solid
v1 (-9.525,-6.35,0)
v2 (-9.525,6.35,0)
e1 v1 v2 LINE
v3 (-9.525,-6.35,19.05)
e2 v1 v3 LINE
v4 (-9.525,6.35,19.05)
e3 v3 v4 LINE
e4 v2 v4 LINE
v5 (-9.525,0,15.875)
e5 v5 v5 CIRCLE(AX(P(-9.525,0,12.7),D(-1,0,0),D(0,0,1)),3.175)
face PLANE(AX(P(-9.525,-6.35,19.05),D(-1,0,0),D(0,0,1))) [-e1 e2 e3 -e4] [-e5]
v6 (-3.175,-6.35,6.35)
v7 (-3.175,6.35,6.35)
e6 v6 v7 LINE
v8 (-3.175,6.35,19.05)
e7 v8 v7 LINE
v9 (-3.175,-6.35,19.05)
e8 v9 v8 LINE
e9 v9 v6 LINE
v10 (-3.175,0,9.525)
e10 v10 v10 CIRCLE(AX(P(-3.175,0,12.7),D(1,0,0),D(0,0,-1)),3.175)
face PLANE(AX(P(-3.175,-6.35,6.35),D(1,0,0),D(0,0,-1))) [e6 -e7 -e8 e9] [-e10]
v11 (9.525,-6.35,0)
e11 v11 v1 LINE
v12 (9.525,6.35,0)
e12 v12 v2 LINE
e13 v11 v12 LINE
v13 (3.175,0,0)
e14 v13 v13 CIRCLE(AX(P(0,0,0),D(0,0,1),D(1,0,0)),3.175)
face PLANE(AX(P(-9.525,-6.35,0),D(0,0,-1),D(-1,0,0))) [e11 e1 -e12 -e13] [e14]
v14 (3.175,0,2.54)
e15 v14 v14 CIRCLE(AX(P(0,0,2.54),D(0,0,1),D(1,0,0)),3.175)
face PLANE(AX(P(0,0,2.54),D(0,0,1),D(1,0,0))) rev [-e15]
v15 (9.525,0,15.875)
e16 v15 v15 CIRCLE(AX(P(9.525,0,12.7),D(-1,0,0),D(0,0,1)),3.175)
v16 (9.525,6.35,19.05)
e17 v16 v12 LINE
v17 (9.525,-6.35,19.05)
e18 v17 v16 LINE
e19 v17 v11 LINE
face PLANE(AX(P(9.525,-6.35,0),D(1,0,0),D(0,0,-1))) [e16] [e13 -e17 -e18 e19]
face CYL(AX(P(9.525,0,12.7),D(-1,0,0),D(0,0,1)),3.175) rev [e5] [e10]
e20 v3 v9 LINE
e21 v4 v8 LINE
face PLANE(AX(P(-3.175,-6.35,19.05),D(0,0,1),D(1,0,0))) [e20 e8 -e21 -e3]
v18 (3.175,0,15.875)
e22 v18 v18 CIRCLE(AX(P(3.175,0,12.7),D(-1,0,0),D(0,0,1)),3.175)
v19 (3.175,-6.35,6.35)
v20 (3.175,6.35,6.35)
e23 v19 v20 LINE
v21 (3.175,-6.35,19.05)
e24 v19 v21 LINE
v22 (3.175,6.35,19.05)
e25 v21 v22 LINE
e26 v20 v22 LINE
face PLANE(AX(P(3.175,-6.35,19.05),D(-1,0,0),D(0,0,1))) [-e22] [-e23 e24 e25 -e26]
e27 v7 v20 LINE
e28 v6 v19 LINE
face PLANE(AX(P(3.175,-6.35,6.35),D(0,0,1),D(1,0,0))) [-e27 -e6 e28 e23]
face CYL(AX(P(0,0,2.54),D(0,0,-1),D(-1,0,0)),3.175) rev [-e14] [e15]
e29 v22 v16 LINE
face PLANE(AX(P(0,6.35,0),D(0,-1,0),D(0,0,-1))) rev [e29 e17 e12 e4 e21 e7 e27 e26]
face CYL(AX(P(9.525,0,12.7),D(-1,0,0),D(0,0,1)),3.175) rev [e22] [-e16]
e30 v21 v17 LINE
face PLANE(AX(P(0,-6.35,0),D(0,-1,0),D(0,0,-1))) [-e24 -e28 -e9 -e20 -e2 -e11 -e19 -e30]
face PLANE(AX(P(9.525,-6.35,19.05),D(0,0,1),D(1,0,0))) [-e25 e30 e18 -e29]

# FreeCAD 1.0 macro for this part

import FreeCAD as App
import Part
import Sketcher
Q = App.Units.Quantity


def add_polygon(sketch, points):
    """Adds a closed chain of lines whose ends are joined by coincident constraints."""
    first, n = sketch.GeometryCount, len(points)
    for a, b in zip(points, points[1:] + points[:1]):
        sketch.addGeometry(Part.LineSegment(App.Vector(*a, 0), App.Vector(*b, 0)), False)
    for i in range(n):
        sketch.addConstraint(Sketcher.Constraint("Coincident", first + i, 2, first + (i + 1) % n, 1))

doc = App.newDocument("Part")
params = doc.addObject("Spreadsheet::Sheet", "Params")
for row, (alias, value) in enumerate([
    ("sketch1_height", "0.5 in"),
    ("sketch1_width", "0.75 in"),
    ("pad1_length", "0.5 in"),
    ("sketch2_diameter", "0.25 in"),
    ("sketch3_diameter", "0.25 in"),
    ("pocket2_length", "0.1 in"),
], start=1):
    params.set(f"A{row}", alias)
    params.set(f"B{row}", "=" + value)
    params.setAlias(f"B{row}", alias)

body = doc.addObject("PartDesign::Body", "Body")

# Sketch on XZ plane
sketch1 = body.newObject("Sketcher::SketchObject", "Sketch")
sketch1.AttachmentSupport = (doc.getObject("XZ_Plane"), [""])
sketch1.MapMode = "FlatFace"
add_polygon(sketch1, [(10, 0), (-10, 0), (-10, 19), (-3, 19), (-3, 6), (3, 6), (3, 19), (10, 19)])  # lines 0-7
sketch1.addConstraint([
    Sketcher.Constraint("Horizontal", 0),
    Sketcher.Constraint("Vertical", 1),
    Sketcher.Constraint("Horizontal", 2),
    Sketcher.Constraint("Vertical", 3),
    Sketcher.Constraint("Horizontal", 4),
    Sketcher.Constraint("Vertical", 5),
    Sketcher.Constraint("Horizontal", 6),
    Sketcher.Constraint("Vertical", 7),
    Sketcher.Constraint("Symmetric", 0, 2, 7, 2, -1, 1),
    Sketcher.Constraint("Symmetric", 2, 2, 5, 2, -2),
    Sketcher.Constraint("Equal", 2, 4),
    Sketcher.Constraint("Equal", 0, 1),
    Sketcher.Constraint("DistanceY", 3, 2, 3, 1, Q("0.5 in")),
    Sketcher.Constraint("DistanceX", 0, 2, 0, 1, Q("0.75 in")),
])
sketch1.setExpression("Constraints[20]", "Params.sketch1_height")
sketch1.setExpression("Constraints[21]", "Params.sketch1_width")
pad1 = body.newObject("PartDesign::Pad", "Pad")
pad1.Profile = sketch1
pad1.setExpression("Length", "Params.pad1_length")
pad1.Midplane = True

# Sketch on YZ plane
sketch2 = body.newObject("Sketcher::SketchObject", "Sketch001")
sketch2.AttachmentSupport = (doc.getObject("YZ_Plane"), [""])
sketch2.MapMode = "FlatFace"
sketch2.AttachmentOffset = App.Placement(App.Vector(0, 0, -0.375 * 25.4), App.Rotation())
sketch2.addGeometry(Part.Circle(App.Vector(0, 12.7, 0), App.Vector(0, 0, 1), 3.2), False)
sketch2.addConstraint([
    Sketcher.Constraint("PointOnObject", 0, 3, -2),
    Sketcher.Constraint("Diameter", 0, Q("0.25 in")),
    Sketcher.Constraint("DistanceY", -1, 1, 0, 3, Q("0.5 in")),
])
sketch2.setExpression("Constraints[1]", "Params.sketch2_diameter")
pocket1 = body.newObject("PartDesign::Pocket", "Pocket")
pocket1.Profile = sketch2
pocket1.Type = "ThroughAll"
pocket1.Reversed = True

# Sketch on XY plane
sketch3 = body.newObject("Sketcher::SketchObject", "Sketch002")
sketch3.AttachmentSupport = (doc.getObject("XY_Plane"), [""])
sketch3.MapMode = "FlatFace"
sketch3.addGeometry(Part.Circle(App.Vector(0, 0, 0), App.Vector(0, 0, 1), 3.2), False)
sketch3.addConstraint([
    Sketcher.Constraint("Coincident", 0, 3, -1, 1),
    Sketcher.Constraint("Diameter", 0, Q("0.25 in")),
])
sketch3.setExpression("Constraints[1]", "Params.sketch3_diameter")
pocket2 = body.newObject("PartDesign::Pocket", "Pocket001")
pocket2.Profile = sketch3
pocket2.setExpression("Length", "Params.pocket2_length")
pocket2.Reversed = True

doc.recompute()
